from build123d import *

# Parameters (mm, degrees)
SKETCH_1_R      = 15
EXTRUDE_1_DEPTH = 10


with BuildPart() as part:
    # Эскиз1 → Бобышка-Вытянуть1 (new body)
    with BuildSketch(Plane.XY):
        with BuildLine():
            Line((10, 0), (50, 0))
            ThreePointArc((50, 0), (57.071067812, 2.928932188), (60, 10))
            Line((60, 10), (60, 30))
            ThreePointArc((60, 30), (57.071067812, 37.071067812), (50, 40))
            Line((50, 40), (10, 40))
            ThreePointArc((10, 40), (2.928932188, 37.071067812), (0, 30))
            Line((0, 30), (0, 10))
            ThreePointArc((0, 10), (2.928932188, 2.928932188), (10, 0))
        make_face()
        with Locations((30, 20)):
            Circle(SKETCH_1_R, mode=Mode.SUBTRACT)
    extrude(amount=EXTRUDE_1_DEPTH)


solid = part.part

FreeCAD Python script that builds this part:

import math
import FreeCAD as App
import Part
import Sketcher

V = App.Vector

doc = App.newDocument("Part")
params = doc.addObject("Spreadsheet::Sheet", "Params")
for row, (alias, value) in enumerate([
    ("sketch1_diameter", "30 mm"),
    ("sketch1_radius", "10 mm"),
    ("sketch1_width", "40 mm"),
    ("sketch1_height", "20 mm"),
    ("pad1_length", "10 mm"),
], start=1):
    params.set(f"A{row}", alias)
    params.set(f"B{row}", "=" + value)
    params.setAlias(f"B{row}", alias)

body = doc.addObject("PartDesign::Body", "Body")

# Sketch on XY plane
sketch1 = body.newObject("Sketcher::SketchObject", "Sketch")
sketch1.AttachmentSupport = (doc.getObject("XY_Plane"), [""])
sketch1.MapMode = "FlatFace"
sketch1.addGeometry([
    Part.LineSegment(V(10, 0, 0), V(50, 0, 0)),  # 0
    Part.ArcOfCircle(Part.Circle(V(50, 10, 0), V(0, 0, 1), 10), math.radians(-90), math.radians(0)),  # 1
    Part.LineSegment(V(60, 10, 0), V(60, 30, 0)),  # 2
    Part.ArcOfCircle(Part.Circle(V(50, 30, 0), V(0, 0, 1), 10), math.radians(0), math.radians(90)),  # 3
    Part.LineSegment(V(50, 40, 0), V(10, 40, 0)),  # 4
    Part.ArcOfCircle(Part.Circle(V(10, 30, 0), V(0, 0, 1), 10), math.radians(90), math.radians(180)),  # 5
    Part.LineSegment(V(0, 30, 0), V(0, 10, 0)),  # 6
    Part.ArcOfCircle(Part.Circle(V(10, 10, 0), V(0, 0, 1), 10), math.radians(180), math.radians(270)),  # 7
    Part.Circle(V(30, 20, 0), V(0, 0, 1), 15),  # 8
], False)
sketch1.addConstraint([
    Sketcher.Constraint("Tangent", 0, 2, 1, 1),
    Sketcher.Constraint("Tangent", 1, 2, 2, 1),
    Sketcher.Constraint("Tangent", 2, 2, 3, 1),
    Sketcher.Constraint("Tangent", 3, 2, 4, 1),
    Sketcher.Constraint("Tangent", 4, 2, 5, 1),
    Sketcher.Constraint("Tangent", 5, 2, 6, 1),
    Sketcher.Constraint("Tangent", 6, 2, 7, 1),
    Sketcher.Constraint("Tangent", 7, 2, 0, 1),
    Sketcher.Constraint("Horizontal", 0),
    Sketcher.Constraint("Vertical", 2),
    Sketcher.Constraint("Horizontal", 4),
    Sketcher.Constraint("Vertical", 6),
    Sketcher.Constraint("Equal", 1, 3),
    Sketcher.Constraint("Equal", 3, 5),
    Sketcher.Constraint("Equal", 5, 7),
    Sketcher.Constraint("PointOnObject", 0, 2, -1),
    Sketcher.Constraint("PointOnObject", 5, 2, -2),
    Sketcher.Constraint("Diameter", 8, 30.0),
    Sketcher.Constraint("Radius", 1, 10.0),
    Sketcher.Constraint("DistanceX", 0, 1, 0, 2, 40.0),
    Sketcher.Constraint("DistanceY", 2, 1, 2, 2, 20.0),
    Sketcher.Constraint("DistanceX", -1, 1, 8, 3, 30.0),
    Sketcher.Constraint("DistanceY", -1, 1, 8, 3, 20.0),
])
sketch1.setExpression("Constraints[17]", "Params.sketch1_diameter")
sketch1.setExpression("Constraints[18]", "Params.sketch1_radius")
sketch1.setExpression("Constraints[19]", "Params.sketch1_width")
sketch1.setExpression("Constraints[20]", "Params.sketch1_height")
pad1 = body.newObject("PartDesign::Pad", "Pad")
pad1.Profile = sketch1
pad1.setExpression("Length", "Params.pad1_length")

doc.recompute()
